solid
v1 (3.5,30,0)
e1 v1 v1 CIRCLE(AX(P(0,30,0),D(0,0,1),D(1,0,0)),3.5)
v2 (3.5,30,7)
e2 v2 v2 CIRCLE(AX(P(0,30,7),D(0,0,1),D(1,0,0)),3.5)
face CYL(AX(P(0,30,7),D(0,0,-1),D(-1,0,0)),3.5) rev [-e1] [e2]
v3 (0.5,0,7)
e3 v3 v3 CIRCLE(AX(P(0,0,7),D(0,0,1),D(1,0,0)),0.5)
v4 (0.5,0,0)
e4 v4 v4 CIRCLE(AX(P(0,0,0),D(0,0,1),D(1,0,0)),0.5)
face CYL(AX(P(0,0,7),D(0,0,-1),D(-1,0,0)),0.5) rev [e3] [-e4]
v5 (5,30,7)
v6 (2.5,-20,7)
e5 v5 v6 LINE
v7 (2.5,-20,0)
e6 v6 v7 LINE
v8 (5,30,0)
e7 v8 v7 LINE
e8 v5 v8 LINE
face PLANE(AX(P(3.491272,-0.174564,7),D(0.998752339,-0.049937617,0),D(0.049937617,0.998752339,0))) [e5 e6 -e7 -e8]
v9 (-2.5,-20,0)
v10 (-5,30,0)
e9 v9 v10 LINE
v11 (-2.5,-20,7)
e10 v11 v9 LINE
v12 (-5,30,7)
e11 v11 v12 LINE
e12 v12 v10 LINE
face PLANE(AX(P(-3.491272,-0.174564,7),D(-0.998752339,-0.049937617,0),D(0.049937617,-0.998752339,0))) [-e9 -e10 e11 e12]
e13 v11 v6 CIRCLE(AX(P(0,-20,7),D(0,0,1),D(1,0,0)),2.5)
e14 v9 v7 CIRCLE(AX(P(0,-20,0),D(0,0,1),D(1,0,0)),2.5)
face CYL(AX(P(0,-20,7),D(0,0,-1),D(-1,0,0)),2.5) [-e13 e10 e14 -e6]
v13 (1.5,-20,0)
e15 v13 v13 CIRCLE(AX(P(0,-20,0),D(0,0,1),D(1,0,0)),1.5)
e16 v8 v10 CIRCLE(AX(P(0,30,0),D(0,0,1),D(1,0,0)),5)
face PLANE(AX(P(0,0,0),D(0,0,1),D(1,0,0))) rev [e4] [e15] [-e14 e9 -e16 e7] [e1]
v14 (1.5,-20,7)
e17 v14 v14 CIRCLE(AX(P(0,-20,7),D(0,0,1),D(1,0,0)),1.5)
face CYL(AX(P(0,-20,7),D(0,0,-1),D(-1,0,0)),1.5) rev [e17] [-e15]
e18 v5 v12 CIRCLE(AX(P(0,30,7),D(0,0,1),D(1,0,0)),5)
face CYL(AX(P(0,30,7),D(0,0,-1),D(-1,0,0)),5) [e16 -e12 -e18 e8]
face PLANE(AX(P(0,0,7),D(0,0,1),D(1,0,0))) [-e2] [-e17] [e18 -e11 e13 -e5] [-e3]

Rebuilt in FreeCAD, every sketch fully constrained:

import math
import FreeCAD as App
import Part
import Sketcher

doc = App.newDocument("Part")
params = doc.addObject("Spreadsheet::Sheet", "Params")
for row, (alias, value) in enumerate([
    ("sketch1_diameter", "3 mm"),
    ("sketch1_diameter2", "1 mm"),
    ("sketch1_diameter3", "7 mm"),
    ("sketch1_radius", "5 mm"),
    ("sketch1_radius2", "2.5 mm"),
    ("pad1_length", "7 mm"),
    ("sketch2_diameter", "1 mm"),
    ("pad2_length", "5 mm"),
    ("sketch3_diameter", "1 mm"),
    ("pocket1_length", "17 mm"),
], start=1):
    params.set(f"A{row}", alias)
    params.set(f"B{row}", "=" + value)
    params.setAlias(f"B{row}", alias)

body = doc.addObject("PartDesign::Body", "Body")

sketch1 = body.newObject("Sketcher::SketchObject", "Sketch")
sketch1.AttachmentSupport = (doc.getObject("XY_Plane"), [""])
sketch1.MapMode = "FlatFace"
sketch1.addGeometry(Part.LineSegment(App.Vector(4.98, 29.5, 0), App.Vector(5, 30, 0)), False)
sketch1.addGeometry(Part.ArcOfCircle(Part.Circle(App.Vector(0, 30, 0), App.Vector(0, 0, 1), 5), math.radians(0), math.radians(180)), False)
sketch1.addGeometry(Part.LineSegment(App.Vector(-5, 30, 0), App.Vector(-4.98, 29.5, 0)), False)
sketch1.addGeometry(Part.LineSegment(App.Vector(-4.98, 29.5, 0), App.Vector(-2.5, -20, 0)), False)
sketch1.addGeometry(Part.ArcOfCircle(Part.Circle(App.Vector(0, -20, 0), App.Vector(0, 0, 1), 2.5), math.radians(180), math.radians(360)), False)
sketch1.addGeometry(Part.LineSegment(App.Vector(2.5, -20, 0), App.Vector(4.98, 29.5, 0)), False)
sketch1.addGeometry(Part.Circle(App.Vector(0, -20, 0), App.Vector(0, 0, 1), 1.5), False)
sketch1.addGeometry(Part.Circle(App.Vector(0, 0, 0), App.Vector(0, 0, 1), 0.5), False)
sketch1.addGeometry(Part.Circle(App.Vector(0, 30, 0), App.Vector(0, 0, 1), 3.5), False)
sketch1.addConstraint(Sketcher.Constraint("Coincident", 0, 2, 1, 1))
sketch1.addConstraint(Sketcher.Constraint("Coincident", 1, 2, 2, 1))
sketch1.addConstraint(Sketcher.Constraint("Coincident", 2, 2, 3, 1))
sketch1.addConstraint(Sketcher.Constraint("Coincident", 3, 2, 4, 1))
sketch1.addConstraint(Sketcher.Constraint("Coincident", 4, 2, 5, 1))
sketch1.addConstraint(Sketcher.Constraint("Coincident", 5, 2, 0, 1))
sketch1.addConstraint(Sketcher.Constraint("Coincident", 7, 3, -1, 1))
sketch1.addConstraint(Sketcher.Constraint("Coincident", 6, 3, 4, 3))
sketch1.addConstraint(Sketcher.Constraint("Coincident", 8, 3, 1, 3))
sketch1.addConstraint(Sketcher.Constraint("Symmetric", 0, 2, 1, 2, -2))
sketch1.addConstraint(Sketcher.Constraint("Symmetric", 3, 2, 4, 2, -2))
sketch1.addConstraint(Sketcher.Constraint("Symmetric", 2, 2, 5, 2, -2))
sketch1.addConstraint(Sketcher.Constraint("Parallel", 2, 3))
sketch1.addConstraint(Sketcher.Constraint("Horizontal", 8, 3, 0, 2))
sketch1.addConstraint(Sketcher.Constraint("Horizontal", 6, 3, 3, 2))
sketch1.addConstraint(Sketcher.Constraint("Diameter", 6, 3.0))
sketch1.addConstraint(Sketcher.Constraint("Diameter", 7, 1.0))
sketch1.addConstraint(Sketcher.Constraint("Diameter", 8, 7.0))
sketch1.addConstraint(Sketcher.Constraint("Radius", 1, 5.0))
sketch1.addConstraint(Sketcher.Constraint("Radius", 4, 2.5))
sketch1.addConstraint(Sketcher.Constraint("DistanceY", -1, 1, 1, 3, 30.0))
sketch1.addConstraint(Sketcher.Constraint("DistanceY", 4, 3, -1, 1, 20.0))
sketch1.addConstraint(Sketcher.Constraint("Distance", 0, 0.499376))
sketch1.setExpression("Constraints[15]", "Params.sketch1_diameter")
sketch1.setExpression("Constraints[16]", "Params.sketch1_diameter2")
sketch1.setExpression("Constraints[17]", "Params.sketch1_diameter3")
sketch1.setExpression("Constraints[18]", "Params.sketch1_radius")
sketch1.setExpression("Constraints[19]", "Params.sketch1_radius2")
pad1 = body.newObject("PartDesign::Pad", "Pad")
pad1.Profile = sketch1
pad1.setExpression("Length", "Params.pad1_length")

sketch2 = body.newObject("Sketcher::SketchObject", "Sketch001")
sketch2.AttachmentSupport = (doc.getObject("XY_Plane"), [""])
sketch2.MapMode = "FlatFace"
sketch2.addGeometry(Part.Circle(App.Vector(0, 0, 0), App.Vector(0, 0, 1), 0.5), False)
sketch2.addConstraint(Sketcher.Constraint("Coincident", 0, 3, -1, 1))
sketch2.addConstraint(Sketcher.Constraint("Diameter", 0, 1.0))
sketch2.setExpression("Constraints[1]", "Params.sketch2_diameter")
pad2 = body.newObject("PartDesign::Pad", "Pad001")
pad2.Profile = sketch2
pad2.setExpression("Length", "Params.pad2_length")

sketch3 = body.newObject("Sketcher::SketchObject", "Sketch002")
sketch3.AttachmentSupport = (doc.getObject("XY_Plane"), [""])
sketch3.MapMode = "FlatFace"
sketch3.addGeometry(Part.Circle(App.Vector(0, 0, 0), App.Vector(0, 0, 1), 0.5), False)
sketch3.addConstraint(Sketcher.Constraint("Coincident", 0, 3, -1, 1))
sketch3.addConstraint(Sketcher.Constraint("Diameter", 0, 1.0))
sketch3.setExpression("Constraints[1]", "Params.sketch3_diameter")
pocket1 = body.newObject("PartDesign::Pocket", "Pocket")
pocket1.Profile = sketch3
pocket1.setExpression("Length", "Params.pocket1_length")
pocket1.Reversed = True

doc.recompute()
